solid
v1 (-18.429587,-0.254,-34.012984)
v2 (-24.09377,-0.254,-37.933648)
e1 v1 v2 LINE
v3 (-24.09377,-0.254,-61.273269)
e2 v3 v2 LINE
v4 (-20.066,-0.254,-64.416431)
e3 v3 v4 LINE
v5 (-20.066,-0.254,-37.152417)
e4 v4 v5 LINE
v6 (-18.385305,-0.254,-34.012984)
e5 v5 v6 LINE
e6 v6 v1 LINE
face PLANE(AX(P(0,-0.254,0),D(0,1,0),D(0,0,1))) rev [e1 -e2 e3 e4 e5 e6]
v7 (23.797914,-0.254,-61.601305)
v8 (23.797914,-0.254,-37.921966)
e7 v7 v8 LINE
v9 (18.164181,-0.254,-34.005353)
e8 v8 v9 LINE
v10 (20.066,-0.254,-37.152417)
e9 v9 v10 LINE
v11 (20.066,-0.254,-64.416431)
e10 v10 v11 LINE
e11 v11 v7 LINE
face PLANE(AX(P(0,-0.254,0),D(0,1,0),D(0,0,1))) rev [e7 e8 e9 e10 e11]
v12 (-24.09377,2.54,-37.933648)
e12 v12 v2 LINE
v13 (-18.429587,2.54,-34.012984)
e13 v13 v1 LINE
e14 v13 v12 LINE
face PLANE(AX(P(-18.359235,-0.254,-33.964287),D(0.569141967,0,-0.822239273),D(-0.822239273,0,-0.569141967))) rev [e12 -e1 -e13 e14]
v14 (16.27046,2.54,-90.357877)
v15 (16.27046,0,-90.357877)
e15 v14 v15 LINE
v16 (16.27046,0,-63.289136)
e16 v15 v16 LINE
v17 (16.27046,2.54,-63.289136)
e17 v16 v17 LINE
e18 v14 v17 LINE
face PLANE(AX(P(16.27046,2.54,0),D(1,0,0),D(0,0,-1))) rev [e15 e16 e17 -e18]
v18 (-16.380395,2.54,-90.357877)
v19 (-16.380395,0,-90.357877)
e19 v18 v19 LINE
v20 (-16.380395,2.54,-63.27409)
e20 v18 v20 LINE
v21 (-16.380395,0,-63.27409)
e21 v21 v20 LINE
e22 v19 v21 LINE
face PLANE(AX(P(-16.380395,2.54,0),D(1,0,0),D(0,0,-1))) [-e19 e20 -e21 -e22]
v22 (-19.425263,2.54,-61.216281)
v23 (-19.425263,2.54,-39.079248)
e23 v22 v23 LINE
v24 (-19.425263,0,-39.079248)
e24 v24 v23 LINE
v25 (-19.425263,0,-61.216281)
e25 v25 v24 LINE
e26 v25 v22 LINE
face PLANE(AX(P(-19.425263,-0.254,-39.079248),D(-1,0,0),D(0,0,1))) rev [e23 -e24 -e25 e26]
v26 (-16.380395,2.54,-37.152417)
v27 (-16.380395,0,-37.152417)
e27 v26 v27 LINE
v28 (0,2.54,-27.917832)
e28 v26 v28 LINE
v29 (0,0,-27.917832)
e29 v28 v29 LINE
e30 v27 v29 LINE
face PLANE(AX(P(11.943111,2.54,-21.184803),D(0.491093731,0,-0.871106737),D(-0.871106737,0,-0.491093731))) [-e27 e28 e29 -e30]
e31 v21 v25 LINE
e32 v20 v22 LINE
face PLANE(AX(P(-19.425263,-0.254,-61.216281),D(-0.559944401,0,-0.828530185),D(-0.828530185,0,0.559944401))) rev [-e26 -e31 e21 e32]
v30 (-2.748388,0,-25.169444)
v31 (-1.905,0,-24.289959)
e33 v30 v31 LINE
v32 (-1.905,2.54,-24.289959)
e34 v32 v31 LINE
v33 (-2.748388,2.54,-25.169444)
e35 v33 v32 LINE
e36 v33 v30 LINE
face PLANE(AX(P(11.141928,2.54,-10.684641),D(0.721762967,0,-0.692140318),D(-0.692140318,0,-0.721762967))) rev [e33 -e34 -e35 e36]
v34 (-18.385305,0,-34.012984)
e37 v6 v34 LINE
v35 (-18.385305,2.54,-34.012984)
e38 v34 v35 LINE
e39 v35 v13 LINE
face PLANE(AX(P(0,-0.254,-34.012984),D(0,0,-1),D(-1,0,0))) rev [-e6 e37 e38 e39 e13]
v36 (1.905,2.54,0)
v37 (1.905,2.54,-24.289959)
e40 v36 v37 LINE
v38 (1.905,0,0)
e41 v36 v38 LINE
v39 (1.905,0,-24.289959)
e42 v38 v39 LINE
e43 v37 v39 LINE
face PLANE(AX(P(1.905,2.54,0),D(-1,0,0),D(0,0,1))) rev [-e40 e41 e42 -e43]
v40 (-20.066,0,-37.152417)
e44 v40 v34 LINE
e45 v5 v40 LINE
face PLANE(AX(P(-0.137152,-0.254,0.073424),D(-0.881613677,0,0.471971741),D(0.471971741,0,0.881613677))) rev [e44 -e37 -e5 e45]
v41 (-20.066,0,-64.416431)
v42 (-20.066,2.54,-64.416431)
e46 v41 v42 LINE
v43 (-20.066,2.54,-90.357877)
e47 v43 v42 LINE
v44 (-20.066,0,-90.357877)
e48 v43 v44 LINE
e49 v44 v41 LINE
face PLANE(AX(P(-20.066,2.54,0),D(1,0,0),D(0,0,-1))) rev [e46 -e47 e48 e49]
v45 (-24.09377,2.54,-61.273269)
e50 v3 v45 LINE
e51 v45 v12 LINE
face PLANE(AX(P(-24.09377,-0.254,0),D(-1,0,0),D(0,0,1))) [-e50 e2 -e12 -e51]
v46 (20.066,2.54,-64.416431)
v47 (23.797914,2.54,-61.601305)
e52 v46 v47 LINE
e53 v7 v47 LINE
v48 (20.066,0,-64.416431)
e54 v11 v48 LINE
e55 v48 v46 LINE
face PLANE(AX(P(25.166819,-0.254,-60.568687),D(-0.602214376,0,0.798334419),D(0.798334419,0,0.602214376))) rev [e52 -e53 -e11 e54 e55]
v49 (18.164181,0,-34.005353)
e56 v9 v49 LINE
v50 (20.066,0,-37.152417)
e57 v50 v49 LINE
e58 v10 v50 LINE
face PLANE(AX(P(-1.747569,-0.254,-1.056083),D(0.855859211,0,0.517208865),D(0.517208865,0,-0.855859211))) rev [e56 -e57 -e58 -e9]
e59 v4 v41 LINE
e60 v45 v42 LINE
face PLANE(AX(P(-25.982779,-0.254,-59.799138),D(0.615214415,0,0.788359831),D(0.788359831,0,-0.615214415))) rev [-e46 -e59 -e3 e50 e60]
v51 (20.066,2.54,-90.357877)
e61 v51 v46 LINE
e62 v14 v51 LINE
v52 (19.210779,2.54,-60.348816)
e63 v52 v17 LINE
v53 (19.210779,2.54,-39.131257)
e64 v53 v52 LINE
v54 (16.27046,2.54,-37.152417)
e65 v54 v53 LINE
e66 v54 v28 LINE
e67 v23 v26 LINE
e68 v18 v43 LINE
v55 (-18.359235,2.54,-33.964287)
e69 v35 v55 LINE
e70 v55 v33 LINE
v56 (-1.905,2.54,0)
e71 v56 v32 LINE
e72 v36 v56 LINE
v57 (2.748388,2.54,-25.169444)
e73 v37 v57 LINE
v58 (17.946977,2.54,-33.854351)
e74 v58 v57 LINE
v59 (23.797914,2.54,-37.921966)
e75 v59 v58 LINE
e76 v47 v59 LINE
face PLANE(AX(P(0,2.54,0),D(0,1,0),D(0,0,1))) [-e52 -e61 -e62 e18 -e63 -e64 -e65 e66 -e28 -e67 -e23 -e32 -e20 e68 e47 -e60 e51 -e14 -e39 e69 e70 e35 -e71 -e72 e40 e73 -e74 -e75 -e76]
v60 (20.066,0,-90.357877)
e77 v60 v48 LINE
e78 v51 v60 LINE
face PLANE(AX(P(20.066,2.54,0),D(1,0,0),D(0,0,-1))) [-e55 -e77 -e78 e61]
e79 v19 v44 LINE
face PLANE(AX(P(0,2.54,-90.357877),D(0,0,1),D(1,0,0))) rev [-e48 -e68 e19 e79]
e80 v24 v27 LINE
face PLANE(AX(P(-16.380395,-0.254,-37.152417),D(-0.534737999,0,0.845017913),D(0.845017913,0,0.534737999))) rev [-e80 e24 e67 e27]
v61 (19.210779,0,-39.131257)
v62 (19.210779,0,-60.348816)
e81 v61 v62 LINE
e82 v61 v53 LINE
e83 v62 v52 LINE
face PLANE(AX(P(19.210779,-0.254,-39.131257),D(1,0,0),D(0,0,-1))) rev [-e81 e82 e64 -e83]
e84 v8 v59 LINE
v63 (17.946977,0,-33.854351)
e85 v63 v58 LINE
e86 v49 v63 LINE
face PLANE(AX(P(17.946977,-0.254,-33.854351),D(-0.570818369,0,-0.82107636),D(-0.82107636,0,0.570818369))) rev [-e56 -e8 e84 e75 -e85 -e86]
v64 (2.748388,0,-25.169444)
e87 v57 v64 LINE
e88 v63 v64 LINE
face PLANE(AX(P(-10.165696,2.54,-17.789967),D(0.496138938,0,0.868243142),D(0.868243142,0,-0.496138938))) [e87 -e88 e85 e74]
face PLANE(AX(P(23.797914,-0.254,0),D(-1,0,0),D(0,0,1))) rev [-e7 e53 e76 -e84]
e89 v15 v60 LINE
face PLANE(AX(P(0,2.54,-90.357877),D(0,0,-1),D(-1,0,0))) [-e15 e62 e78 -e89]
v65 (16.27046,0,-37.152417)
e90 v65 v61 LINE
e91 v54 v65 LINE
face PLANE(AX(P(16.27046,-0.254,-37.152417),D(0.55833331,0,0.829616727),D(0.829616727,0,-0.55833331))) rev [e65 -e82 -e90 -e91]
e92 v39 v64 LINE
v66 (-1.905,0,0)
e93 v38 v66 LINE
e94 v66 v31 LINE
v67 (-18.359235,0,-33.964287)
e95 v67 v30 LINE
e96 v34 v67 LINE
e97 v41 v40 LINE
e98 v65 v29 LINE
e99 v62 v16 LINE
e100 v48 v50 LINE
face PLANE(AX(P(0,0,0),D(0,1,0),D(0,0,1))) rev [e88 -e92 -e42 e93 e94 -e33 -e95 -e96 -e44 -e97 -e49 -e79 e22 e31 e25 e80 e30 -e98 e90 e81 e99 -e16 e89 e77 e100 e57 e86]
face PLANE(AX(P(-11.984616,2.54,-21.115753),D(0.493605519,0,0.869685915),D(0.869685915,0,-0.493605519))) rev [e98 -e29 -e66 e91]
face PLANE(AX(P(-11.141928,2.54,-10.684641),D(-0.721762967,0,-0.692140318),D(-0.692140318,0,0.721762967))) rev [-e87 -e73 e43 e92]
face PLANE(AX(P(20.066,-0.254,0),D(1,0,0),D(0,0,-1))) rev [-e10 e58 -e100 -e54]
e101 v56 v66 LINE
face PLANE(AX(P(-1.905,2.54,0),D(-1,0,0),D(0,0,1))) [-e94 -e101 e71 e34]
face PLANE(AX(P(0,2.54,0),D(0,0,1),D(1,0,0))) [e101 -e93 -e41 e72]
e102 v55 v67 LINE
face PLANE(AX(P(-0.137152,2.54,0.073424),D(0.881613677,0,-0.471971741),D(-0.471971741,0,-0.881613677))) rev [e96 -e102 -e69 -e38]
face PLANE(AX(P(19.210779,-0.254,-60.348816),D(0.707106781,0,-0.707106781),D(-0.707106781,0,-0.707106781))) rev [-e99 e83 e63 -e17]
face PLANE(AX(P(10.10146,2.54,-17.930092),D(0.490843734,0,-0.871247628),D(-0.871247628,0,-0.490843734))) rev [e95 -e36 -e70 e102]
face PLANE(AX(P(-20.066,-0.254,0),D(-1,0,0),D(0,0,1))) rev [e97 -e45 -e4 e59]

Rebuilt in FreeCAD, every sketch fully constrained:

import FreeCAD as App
import Part
import Sketcher
from FreeCAD import Vector
Q = App.Units.Quantity


def add_polygon(sketch, points):
    """Adds a closed chain of lines whose ends are joined by coincident constraints."""
    first, n = sketch.GeometryCount, len(points)
    for a, b in zip(points, points[1:] + points[:1]):
        sketch.addGeometry(Part.LineSegment(App.Vector(*a, 0), App.Vector(*b, 0)), False)
    for i in range(n):
        sketch.addConstraint(Sketcher.Constraint("Coincident", first + i, 2, first + (i + 1) % n, 1))

doc = App.newDocument("Part")
params = doc.addObject("Spreadsheet::Sheet", "Params")
for row, (alias, value) in enumerate([
    ("sketch1_width", "0.15 in"),
    ("pad1_length", "0.1 in"),
    ("pad2_length", "0.11 in"),
    ("pad3_length", "0.11 in"),
    ("pocket1_length", "0.11 in"),
    ("pocket2_length", "0.11 in"),
    ("pocket3_length", "0.11 in"),
    ("pocket4_length", "0.11 in"),
], start=1):
    params.set(f"A{row}", alias)
    params.set(f"B{row}", "=" + value)
    params.setAlias(f"B{row}", alias)

body = doc.addObject("PartDesign::Body", "Body")

sketch1 = body.newObject("Sketcher::SketchObject", "Sketch")
sketch1.AttachmentSupport = (doc.getObject("XZ_Plane"), [""])
sketch1.MapMode = "FlatFace"
add_polygon(sketch1, [(-1.905, 0), (1.905, 0), (1.905, -24.289959), (2.748388, -25.169444), (18.139364, -33.964287), (20.066, -37.152417), (20.066, -90.357877), (16.27046, -90.357877), (16.27046, -37.152417), (0, -27.917832), (-16.380395, -37.152417), (-16.380395, -90.357877), (-20.066, -90.357877), (-20.066, -37.152417), (-18.359235, -33.964287), (-2.748388, -25.169444), (-1.905, -24.289959)])
sketch1.addConstraint([
    Sketcher.Constraint("Horizontal", 0),
    Sketcher.Constraint("Vertical", 1),
    Sketcher.Constraint("Vertical", 5),
    Sketcher.Constraint("Horizontal", 6),
    Sketcher.Constraint("Vertical", 7),
    Sketcher.Constraint("Vertical", 10),
    Sketcher.Constraint("Horizontal", 11),
    Sketcher.Constraint("Vertical", 12),
    Sketcher.Constraint("Vertical", 16),
    Sketcher.Constraint("Symmetric", 0, 2, 16, 2, -1, 1),
    Sketcher.Constraint("Symmetric", 5, 2, 11, 2, -2),
    Sketcher.Constraint("Symmetric", 2, 2, 14, 2, -2),
    Sketcher.Constraint("PointOnObject", 8, 2, -2),
    Sketcher.Constraint("Horizontal", 4, 2, 7, 2),
    Sketcher.Constraint("Horizontal", 7, 2, 9, 2),
    Sketcher.Constraint("Horizontal", 9, 2, 12, 2),
    Sketcher.Constraint("Horizontal", 3, 2, 13, 2),
    Sketcher.Constraint("Horizontal", 1, 2, 15, 2),
    Sketcher.Constraint("DistanceX", 0, 1, 0, 2, Q("0.15 in")),
    Sketcher.Constraint("DistanceX", -1, 1, 4, 2, Q("0.79 in")),
    Sketcher.Constraint("DistanceX", 6, 2, 6, 1, 3.79554),
    Sketcher.Constraint("DistanceY", 1, 2, 1, 1, 24.289959),
    Sketcher.Constraint("DistanceY", 5, 2, 5, 1, 53.205459),
    Sketcher.Constraint("Distance", 8, 18.708432),
    Sketcher.Constraint("Distance", 9, 18.804119),
    Sketcher.Constraint("DistanceX", -1, 1, 2, 2, 2.748388),
    Sketcher.Constraint("DistanceY", 4, 2, 3, 2, 3.188131),
    Sketcher.Constraint("DistanceY", 8, 2, 2, 2, 2.748388),
    Sketcher.Constraint("DistanceX", 9, 2, 3, 2, 34.519759),
    Sketcher.Constraint("DistanceX", 13, 2, 9, 2, 1.97884),
    Sketcher.Constraint("Distance", 2, 1.218522),
])
sketch1.setExpression("Constraints[35]", "Params.sketch1_width")
pad1 = body.newObject("PartDesign::Pad", "Pad")
pad1.Profile = sketch1
pad1.setExpression("Length", "Params.pad1_length")
pad1.Reversed = True

sketch2 = body.newObject("Sketcher::SketchObject", "Sketch001")
sketch2.AttachmentSupport = (doc.getObject("XZ_Plane"), [""])
sketch2.MapMode = "FlatFace"
sketch2.AttachmentOffset = App.Placement(Vector(0, 0, -0.1 * 25.4), App.Rotation())
add_polygon(sketch2, [(-20.066, -64.416431), (-24.09377, -64.416431), (-24.09377, -34.012984), (-18.385305, -34.012984), (-20.066, -37.152417)])
sketch2.addConstraint([
    Sketcher.Constraint("Horizontal", 0),
    Sketcher.Constraint("Vertical", 1),
    Sketcher.Constraint("Horizontal", 2),
    Sketcher.Constraint("Vertical", 4),
    Sketcher.Constraint("DistanceX", 3, 2, -1, 1, Q("0.79 in")),
    Sketcher.Constraint("DistanceX", 0, 2, 0, 1, 4.02777),
    Sketcher.Constraint("Distance", 3, 3.561008),
    Sketcher.Constraint("DistanceX", 2, 1, 2, 2, 5.708465),
    Sketcher.Constraint("DistanceY", 1, 1, 1, 2, 30.403447),
    Sketcher.Constraint("DistanceY", 0, 2, -1, 1, 64.416431),
])
pad2 = body.newObject("PartDesign::Pad", "Pad001")
pad2.Profile = sketch2
pad2.setExpression("Length", "Params.pad2_length")

sketch3 = body.newObject("Sketcher::SketchObject", "Sketch002")
sketch3.AttachmentSupport = (doc.getObject("XZ_Plane"), [""])
sketch3.MapMode = "FlatFace"
sketch3.AttachmentOffset = App.Placement(Vector(0, 0, -0.1 * 25.4), App.Rotation())
add_polygon(sketch3, [(23.797914, -64.416431), (20.066, -64.416431), (20.066, -37.152417), (18.139364, -33.964287), (17.946977, -33.854351), (23.797914, -33.854351)])
sketch3.addConstraint([
    Sketcher.Constraint("Horizontal", 0),
    Sketcher.Constraint("Vertical", 1),
    Sketcher.Constraint("Horizontal", 4),
    Sketcher.Constraint("Vertical", 5),
    Sketcher.Constraint("DistanceX", -1, 1, 0, 2, Q("0.79 in")),
    Sketcher.Constraint("DistanceY", 5, 2, 5, 1, 30.562079),
    Sketcher.Constraint("DistanceX", 0, 2, 0, 1, 3.731914),
    Sketcher.Constraint("DistanceX", 4, 1, 4, 2, 5.850937),
    Sketcher.Constraint("DistanceY", 1, 1, 1, 2, 27.264013),
    Sketcher.Constraint("DistanceY", 0, 2, -1, 1, 64.416431),
    Sketcher.Constraint("DistanceY", 1, 2, 2, 2, 3.188131),
    Sketcher.Constraint("DistanceX", 2, 2, 4, 2, 5.65855),
])
pad3 = body.newObject("PartDesign::Pad", "Pad002")
pad3.Profile = sketch3
pad3.setExpression("Length", "Params.pad3_length")

sketch4 = body.newObject("Sketcher::SketchObject", "Sketch003")
sketch4.AttachmentSupport = (doc.getObject("XZ_Plane"), [""])
sketch4.MapMode = "FlatFace"
sketch4.AttachmentOffset = App.Placement(Vector(0, 0, -0.1 * 25.4), App.Rotation())
add_polygon(sketch4, [(-19.425263, -39.079248), (-16.380395, -37.152417), (-16.380395, -63.27409), (-19.425263, -61.216281)])
sketch4.addConstraint([
    Sketcher.Constraint("Vertical", 1),
    Sketcher.Constraint("Vertical", 3),
    Sketcher.Constraint("DistanceY", 1, 2, 1, 1, 26.121672),
    Sketcher.Constraint("DistanceY", 3, 1, 3, 2, 22.137033),
    Sketcher.Constraint("DistanceY", 1, 2, -1, 1, 63.27409),
    Sketcher.Constraint("DistanceY", 2, 2, -1, 1, 61.216281),
    Sketcher.Constraint("Distance", 0, 3.603317),
    Sketcher.Constraint("DistanceX", 0, 2, -1, 1, 16.380395),
])
pocket1 = body.newObject("PartDesign::Pocket", "Pocket")
pocket1.Profile = sketch4
pocket1.setExpression("Length", "Params.pocket1_length")
pocket1.Reversed = True

sketch5 = body.newObject("Sketcher::SketchObject", "Sketch004")
sketch5.AttachmentSupport = (doc.getObject("XZ_Plane"), [""])
sketch5.MapMode = "FlatFace"
sketch5.AttachmentOffset = App.Placement(Vector(0, 0, -0.1 * 25.4), App.Rotation())
add_polygon(sketch5, [(16.27046, -37.152417), (19.210779, -39.131257), (19.210779, -60.348816), (16.022649, -63.536946)])
sketch5.addConstraint([
    Sketcher.Constraint("Vertical", 1),
    Sketcher.Constraint("Angle", 2, Q("-135 deg")),
    Sketcher.Constraint("DistanceY", 1, 2, 1, 1, 21.217559),
    Sketcher.Constraint("DistanceY", 1, 2, 3, 2, 23.196398),
    Sketcher.Constraint("Distance", 0, 3.544191),
    Sketcher.Constraint("DistanceX", -1, 1, 0, 2, 19.210779),
    Sketcher.Constraint("DistanceX", -1, 1, 2, 2, 16.022649),
    Sketcher.Constraint("DistanceY", 0, 2, -1, 1, 39.131257),
])
pocket2 = body.newObject("PartDesign::Pocket", "Pocket001")
pocket2.Profile = sketch5
pocket2.setExpression("Length", "Params.pocket2_length")
pocket2.Reversed = True

sketch6 = body.newObject("Sketcher::SketchObject", "Sketch005")
sketch6.AttachmentSupport = (doc.getObject("XZ_Plane"), [""])
sketch6.MapMode = "FlatFace"
sketch6.AttachmentOffset = App.Placement(Vector(0, 0, -0.1 * 25.4), App.Rotation())
add_polygon(sketch6, [(-18.359235, -33.964287), (-25.982779, -39.241193), (-25.982779, -59.799138), (-20.066, -64.416431), (-26.704116, -65.235311), (-32.13917, -50.784424), (-24.09377, -30.886092)])
sketch6.addConstraint([
    Sketcher.Constraint("Vertical", 1),
    Sketcher.Constraint("DistanceX", 2, 2, -1, 1, Q("0.79 in")),
    Sketcher.Constraint("DistanceY", 0, 2, 5, 2, 8.355101),
    Sketcher.Constraint("DistanceX", 4, 2, 5, 2, 8.0454),
    Sketcher.Constraint("Distance", 4, 15.439169),
    Sketcher.Constraint("Distance", 6, 6.50847),
    Sketcher.Constraint("DistanceY", 1, 2, 1, 1, 20.557946),
    Sketcher.Constraint("DistanceX", 0, 2, -1, 1, 25.982779),
    Sketcher.Constraint("DistanceY", 1, 2, -1, 1, 59.799138),
    Sketcher.Constraint("DistanceY", 2, 2, -1, 1, 64.416431),
    Sketcher.Constraint("DistanceY", 3, 2, -1, 1, 65.235311),
    Sketcher.Constraint("DistanceX", 4, 2, -1, 1, 32.13917),
    Sketcher.Constraint("DistanceY", 4, 2, 0, 2, 11.543231),
    Sketcher.Constraint("DistanceY", 1, 2, 6, 2, 25.834851),
])
pocket3 = body.newObject("PartDesign::Pocket", "Pocket002")
pocket3.Profile = sketch6
pocket3.setExpression("Length", "Params.pocket3_length")
pocket3.Reversed = True

sketch7 = body.newObject("Sketcher::SketchObject", "Sketch006")
sketch7.AttachmentSupport = (doc.getObject("XZ_Plane"), [""])
sketch7.MapMode = "FlatFace"
sketch7.AttachmentOffset = App.Placement(Vector(0, 0, -0.1 * 25.4), App.Rotation())
add_polygon(sketch7, [(23.797914, -37.921966), (17.946977, -33.854351), (20.441248, -27.838251), (29.094925, -33.854351), (32.063184, -64.416431), (22.616409, -67.797419), (20.066, -64.416431), (25.166819, -60.568687), (26.535724, -53.149225)])
sketch7.addConstraint([
    Sketcher.Constraint("Parallel", 0, 2),
    Sketcher.Constraint("Perpendicular", 5, 6),
    Sketcher.Constraint("Horizontal", 0, 2, 2, 2),
    Sketcher.Constraint("Horizontal", 3, 2, 5, 2),
    Sketcher.Constraint("DistanceX", -1, 1, 5, 2, Q("0.79 in")),
    Sketcher.Constraint("DistanceY", 0, 2, 1, 2, 6.0161),
    Sketcher.Constraint("DistanceX", 7, 2, 2, 2, 2.559201),
    Sketcher.Constraint("Distance", 1, 6.512669),
    Sketcher.Constraint("Distance", 2, 10.53943),
    Sketcher.Constraint("Distance", 7, 7.544688),
    Sketcher.Constraint("DistanceY", 0, 2, -1, 1, 33.854351),
    Sketcher.Constraint("DistanceX", -1, 1, 1, 2, 20.441248),
    Sketcher.Constraint("DistanceY", 3, 2, -1, 1, 64.416431),
    Sketcher.Constraint("DistanceX", -1, 1, 4, 2, 22.616409),
    Sketcher.Constraint("DistanceY", 4, 2, -1, 1, 67.797419),
    Sketcher.Constraint("DistanceX", -1, 1, 6, 2, 25.166819),
    Sketcher.Constraint("DistanceX", 2, 2, 3, 2, 2.96826),
    Sketcher.Constraint("DistanceX", 8, 2, 2, 2, 5.297011),
])
pocket4 = body.newObject("PartDesign::Pocket", "Pocket003")
pocket4.Profile = sketch7
pocket4.setExpression("Length", "Params.pocket4_length")
pocket4.Reversed = True

doc.recompute()
